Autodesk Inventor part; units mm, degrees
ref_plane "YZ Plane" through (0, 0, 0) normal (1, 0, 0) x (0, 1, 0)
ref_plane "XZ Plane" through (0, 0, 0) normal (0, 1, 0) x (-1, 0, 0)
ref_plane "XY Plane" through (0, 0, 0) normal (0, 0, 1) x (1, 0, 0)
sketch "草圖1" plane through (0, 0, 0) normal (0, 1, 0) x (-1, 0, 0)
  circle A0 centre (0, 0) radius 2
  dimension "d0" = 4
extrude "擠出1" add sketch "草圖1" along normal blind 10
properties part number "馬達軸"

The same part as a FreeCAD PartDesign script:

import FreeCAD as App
import Part
import Sketcher

doc = App.newDocument("Part")
body = doc.addObject("PartDesign::Body", "Body")

# Sketch on XZ plane
sketch1 = body.newObject("Sketcher::SketchObject", "Sketch")
sketch1.AttachmentSupport = (doc.getObject("XZ_Plane"), [""])
sketch1.MapMode = "FlatFace"
sketch1.addGeometry(Part.Circle(App.Vector(0, 0, 0), App.Vector(0, 0, 1), 2), False)
sketch1.addConstraint(Sketcher.Constraint("Coincident", 0, 3, -1, 1))
sketch1.addConstraint(Sketcher.Constraint("Diameter", 0, 4.0))
pad1 = body.newObject("PartDesign::Pad", "Pad")
pad1.Profile = sketch1
pad1.Length = 10
pad1.Reversed = True

doc.recompute()
